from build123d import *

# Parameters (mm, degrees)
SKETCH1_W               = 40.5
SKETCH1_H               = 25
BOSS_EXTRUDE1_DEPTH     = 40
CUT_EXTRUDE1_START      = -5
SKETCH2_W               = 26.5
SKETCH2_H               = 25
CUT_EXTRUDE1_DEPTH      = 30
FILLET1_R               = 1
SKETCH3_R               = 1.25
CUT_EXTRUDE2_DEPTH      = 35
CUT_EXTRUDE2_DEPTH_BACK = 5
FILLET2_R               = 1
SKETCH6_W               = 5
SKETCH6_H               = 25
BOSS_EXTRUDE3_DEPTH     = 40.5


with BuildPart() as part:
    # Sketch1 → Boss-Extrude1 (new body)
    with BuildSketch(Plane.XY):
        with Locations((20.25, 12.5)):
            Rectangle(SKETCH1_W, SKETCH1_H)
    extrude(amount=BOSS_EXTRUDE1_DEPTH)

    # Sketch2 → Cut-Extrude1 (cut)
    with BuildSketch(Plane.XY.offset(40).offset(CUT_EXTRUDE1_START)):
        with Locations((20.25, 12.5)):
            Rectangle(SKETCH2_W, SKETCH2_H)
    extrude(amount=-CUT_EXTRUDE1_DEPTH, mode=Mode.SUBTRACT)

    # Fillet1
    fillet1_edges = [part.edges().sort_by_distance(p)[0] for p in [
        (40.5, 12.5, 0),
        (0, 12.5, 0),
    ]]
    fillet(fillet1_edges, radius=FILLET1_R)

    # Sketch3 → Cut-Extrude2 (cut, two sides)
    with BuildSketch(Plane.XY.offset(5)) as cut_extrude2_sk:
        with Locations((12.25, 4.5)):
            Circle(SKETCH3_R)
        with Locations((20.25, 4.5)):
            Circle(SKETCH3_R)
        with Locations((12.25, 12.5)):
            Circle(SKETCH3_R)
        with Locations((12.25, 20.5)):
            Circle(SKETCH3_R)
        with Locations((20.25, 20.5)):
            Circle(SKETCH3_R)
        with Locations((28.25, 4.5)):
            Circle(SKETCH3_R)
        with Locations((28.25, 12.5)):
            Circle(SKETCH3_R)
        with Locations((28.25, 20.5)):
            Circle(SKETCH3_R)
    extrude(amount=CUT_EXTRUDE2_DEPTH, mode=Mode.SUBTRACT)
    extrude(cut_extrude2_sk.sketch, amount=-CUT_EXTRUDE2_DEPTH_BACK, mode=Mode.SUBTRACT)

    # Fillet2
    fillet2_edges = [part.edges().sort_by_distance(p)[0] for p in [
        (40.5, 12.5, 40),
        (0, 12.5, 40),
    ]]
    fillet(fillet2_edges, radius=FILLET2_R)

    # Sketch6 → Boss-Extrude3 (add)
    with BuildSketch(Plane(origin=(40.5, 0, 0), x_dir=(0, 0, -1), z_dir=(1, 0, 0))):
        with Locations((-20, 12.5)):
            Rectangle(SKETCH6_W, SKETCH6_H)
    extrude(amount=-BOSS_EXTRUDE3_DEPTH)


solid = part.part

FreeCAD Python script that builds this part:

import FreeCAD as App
import Part
import Sketcher
from FreeCAD import Vector
Q = App.Units.Quantity


def edges_at(feature, points):
    """Names of the edges that pass closest to the given points."""
    edges = feature.Shape.Edges
    near = lambda p: min(range(len(edges)), key=lambda i: edges[i].distToShape(Part.Vertex(*p))[0])
    return sorted({f"Edge{near(p) + 1}" for p in points})


def add_polygon(sketch, points):
    """Adds a closed chain of lines whose ends are joined by coincident constraints."""
    first, n = sketch.GeometryCount, len(points)
    for a, b in zip(points, points[1:] + points[:1]):
        sketch.addGeometry(Part.LineSegment(App.Vector(*a, 0), App.Vector(*b, 0)), False)
    for i in range(n):
        sketch.addConstraint(Sketcher.Constraint("Coincident", first + i, 2, first + (i + 1) % n, 1))

doc = App.newDocument("Part")
body = doc.addObject("PartDesign::Body", "Body")

sketch1 = body.newObject("Sketcher::SketchObject", "Sketch")
sketch1.AttachmentSupport = (doc.getObject("XY_Plane"), [""])
sketch1.MapMode = "FlatFace"
add_polygon(sketch1, [(0, 25), (0, 0), (40, 0), (40, 25)])
sketch1.addConstraint([
    Sketcher.Constraint("Vertical", 0),
    Sketcher.Constraint("Horizontal", 1),
    Sketcher.Constraint("Vertical", 2),
    Sketcher.Constraint("Horizontal", 3),
    Sketcher.Constraint("Coincident", 0, 2, -1, 1),
    Sketcher.Constraint("DistanceY", 0, 2, 0, 1, Q("25 mm")),
    Sketcher.Constraint("DistanceX", 1, 1, 1, 2, Q("40.5 mm")),
])
pad1 = body.newObject("PartDesign::Pad", "Pad")
pad1.Profile = sketch1
pad1.Length = 40

sketch2 = body.newObject("Sketcher::SketchObject", "Sketch001")
sketch2.AttachmentSupport = (doc.getObject("XY_Plane"), [""])
sketch2.MapMode = "FlatFace"
sketch2.AttachmentOffset = App.Placement(Vector(0, 0, 35), App.Rotation())
add_polygon(sketch2, [(7, 25), (7, 0), (34, 0), (34, 25)])
sketch2.addConstraint([
    Sketcher.Constraint("Vertical", 0),
    Sketcher.Constraint("Horizontal", 1),
    Sketcher.Constraint("Vertical", 2),
    Sketcher.Constraint("Horizontal", 3),
    Sketcher.Constraint("PointOnObject", 0, 2, -1),
    Sketcher.Constraint("DistanceY", 0, 2, 0, 1, Q("25 mm")),
    Sketcher.Constraint("DistanceX", 1, 1, 1, 2, Q("26.5 mm")),
    Sketcher.Constraint("DistanceX", -1, 1, 0, 2, Q("7 mm")),
])
pocket1 = body.newObject("PartDesign::Pocket", "Pocket")
pocket1.Profile = sketch2
pocket1.Length = 30
doc.recompute()

fillet = body.newObject("PartDesign::Fillet", "Fillet")
fillet.Base = (pocket1, edges_at(pocket1, [(40.5, 12.5, 0), (0, 12.5, 0)]))
fillet.Radius = 1

sketch3 = body.newObject("Sketcher::SketchObject", "Sketch002")
sketch3.AttachmentSupport = (doc.getObject("XY_Plane"), [""])
sketch3.MapMode = "FlatFace"
sketch3.AttachmentOffset = App.Placement(Vector(0, 0, 5), App.Rotation())
sketch3.addGeometry([
    Part.Circle(Vector(12.2, 4.5, 0), Vector(0, 0, 1), 1.2),
    Part.Circle(Vector(20.2, 4.5, 0), Vector(0, 0, 1), 1.2),
    Part.Circle(Vector(12.2, 12.5, 0), Vector(0, 0, 1), 1.2),
    Part.Circle(Vector(12.2, 20.5, 0), Vector(0, 0, 1), 1.2),
    Part.Circle(Vector(20.2, 20.5, 0), Vector(0, 0, 1), 1.2),
    Part.Circle(Vector(28.2, 4.5, 0), Vector(0, 0, 1), 1.2),
    Part.Circle(Vector(28.2, 12.5, 0), Vector(0, 0, 1), 1.2),
    Part.Circle(Vector(28.2, 20.5, 0), Vector(0, 0, 1), 1.2),
], False)
sketch3.addConstraint([
    Sketcher.Constraint("Equal", 0, 1),
    Sketcher.Constraint("Equal", 1, 2),
    Sketcher.Constraint("Equal", 2, 3),
    Sketcher.Constraint("Equal", 3, 4),
    Sketcher.Constraint("Equal", 4, 5),
    Sketcher.Constraint("Equal", 5, 6),
    Sketcher.Constraint("Equal", 6, 7),
    Sketcher.Constraint("Horizontal", 0, 3, 1, 3),
    Sketcher.Constraint("Horizontal", 3, 3, 4, 3),
    Sketcher.Constraint("Horizontal", 1, 3, 5, 3),
    Sketcher.Constraint("Horizontal", 2, 3, 6, 3),
    Sketcher.Constraint("Horizontal", 4, 3, 7, 3),
    Sketcher.Constraint("Vertical", 0, 3, 2, 3),
    Sketcher.Constraint("Vertical", 2, 3, 3, 3),
    Sketcher.Constraint("Vertical", 1, 3, 4, 3),
    Sketcher.Constraint("Vertical", 5, 3, 6, 3),
    Sketcher.Constraint("Vertical", 6, 3, 7, 3),
    Sketcher.Constraint("Diameter", 0, Q("2.5 mm")),
    Sketcher.Constraint("DistanceX", 0, 3, 1, 3, Q("8 mm")),
    Sketcher.Constraint("DistanceY", 0, 3, 2, 3, Q("8 mm")),
    Sketcher.Constraint("DistanceY", 2, 3, 3, 3, Q("8 mm")),
    Sketcher.Constraint("DistanceX", 1, 3, 5, 3, Q("8 mm")),
    Sketcher.Constraint("DistanceY", -1, 1, 0, 3, Q("4.5 mm")),
    Sketcher.Constraint("DistanceX", -1, 1, 0, 3, Q("12.25 mm")),
])
pocket2 = body.newObject("PartDesign::Pocket", "Pocket001")
pocket2.Profile = sketch3
pocket2.Type = "ThroughAll"
pocket2.Midplane = True
doc.recompute()

fillet2 = body.newObject("PartDesign::Fillet", "Fillet001")
fillet2.Base = (pocket2, edges_at(pocket2, [(40.5, 12.5, 40), (0, 12.5, 40)]))
fillet2.Radius = 1

sketch4 = body.newObject("Sketcher::SketchObject", "Sketch003")
sketch4.AttachmentSupport = (doc.getObject("YZ_Plane"), [""])
sketch4.MapMode = "FlatFace"
sketch4.AttachmentOffset = App.Placement(Vector(0, 0, 40.5), App.Rotation())
add_polygon(sketch4, [(25, 22), (0, 22), (0, 18), (25, 18)])
sketch4.addConstraint([
    Sketcher.Constraint("Horizontal", 0),
    Sketcher.Constraint("Vertical", 1),
    Sketcher.Constraint("Horizontal", 2),
    Sketcher.Constraint("Vertical", 3),
    Sketcher.Constraint("PointOnObject", 0, 2, -2),
    Sketcher.Constraint("DistanceX", 0, 2, 0, 1, Q("25 mm")),
    Sketcher.Constraint("DistanceY", 1, 2, 1, 1, Q("5 mm")),
    Sketcher.Constraint("DistanceY", -1, 1, 0, 2, Q("22.5 mm")),
])
pad2 = body.newObject("PartDesign::Pad", "Pad001")
pad2.Profile = sketch4
pad2.Length = 40.5
pad2.Reversed = True

doc.recompute()
